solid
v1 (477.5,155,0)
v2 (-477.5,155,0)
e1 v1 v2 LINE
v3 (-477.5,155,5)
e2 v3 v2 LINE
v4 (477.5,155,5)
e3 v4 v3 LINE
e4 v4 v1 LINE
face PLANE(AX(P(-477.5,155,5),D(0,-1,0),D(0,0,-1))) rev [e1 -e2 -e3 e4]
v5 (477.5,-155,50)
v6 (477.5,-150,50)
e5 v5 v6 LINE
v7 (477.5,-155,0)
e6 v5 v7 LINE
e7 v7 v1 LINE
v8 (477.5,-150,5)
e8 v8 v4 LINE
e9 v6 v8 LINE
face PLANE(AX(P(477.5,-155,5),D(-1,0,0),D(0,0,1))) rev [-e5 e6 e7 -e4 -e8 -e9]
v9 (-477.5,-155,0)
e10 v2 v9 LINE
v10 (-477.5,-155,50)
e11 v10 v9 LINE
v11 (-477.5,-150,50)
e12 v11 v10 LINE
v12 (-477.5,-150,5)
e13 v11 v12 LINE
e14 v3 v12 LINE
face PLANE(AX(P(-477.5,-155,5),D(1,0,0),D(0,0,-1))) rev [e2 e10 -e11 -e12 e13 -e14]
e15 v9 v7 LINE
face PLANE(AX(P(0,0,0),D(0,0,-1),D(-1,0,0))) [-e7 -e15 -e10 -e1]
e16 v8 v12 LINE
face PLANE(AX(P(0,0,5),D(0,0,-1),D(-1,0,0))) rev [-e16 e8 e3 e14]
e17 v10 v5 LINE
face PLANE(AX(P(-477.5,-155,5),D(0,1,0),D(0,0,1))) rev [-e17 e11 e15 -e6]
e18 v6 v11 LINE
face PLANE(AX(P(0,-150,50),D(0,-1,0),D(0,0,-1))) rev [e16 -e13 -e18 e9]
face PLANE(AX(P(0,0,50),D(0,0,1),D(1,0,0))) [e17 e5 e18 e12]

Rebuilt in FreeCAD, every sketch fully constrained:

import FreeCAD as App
import Part
import Sketcher

doc = App.newDocument("Part")
params = doc.addObject("Spreadsheet::Sheet", "Params")
for row, (alias, value) in enumerate([
    ("sketch1_width", "955 mm"),
    ("sketch1_height", "310 mm"),
    ("pad1_length", "5 mm"),
    ("sketch2_width", "955 mm"),
    ("sketch2_height", "5 mm"),
    ("pad2_length", "45 mm"),
], start=1):
    params.set(f"A{row}", alias)
    params.set(f"B{row}", "=" + value)
    params.setAlias(f"B{row}", alias)

body = doc.addObject("PartDesign::Body", "Body")

sketch1 = body.newObject("Sketcher::SketchObject", "Sketch")
sketch1.AttachmentSupport = (doc.getObject("XY_Plane"), [""])
sketch1.MapMode = "FlatFace"
sketch1.addGeometry(Part.LineSegment(App.Vector(-478, 155, 0), App.Vector(-478, -155, 0)), False)
sketch1.addGeometry(Part.LineSegment(App.Vector(-478, -155, 0), App.Vector(478, -155, 0)), False)
sketch1.addGeometry(Part.LineSegment(App.Vector(478, -155, 0), App.Vector(478, 155, 0)), False)
sketch1.addGeometry(Part.LineSegment(App.Vector(478, 155, 0), App.Vector(-478, 155, 0)), False)
sketch1.addConstraint(Sketcher.Constraint("Coincident", 0, 2, 1, 1))
sketch1.addConstraint(Sketcher.Constraint("Coincident", 1, 2, 2, 1))
sketch1.addConstraint(Sketcher.Constraint("Coincident", 2, 2, 3, 1))
sketch1.addConstraint(Sketcher.Constraint("Coincident", 3, 2, 0, 1))
sketch1.addConstraint(Sketcher.Constraint("Vertical", 0))
sketch1.addConstraint(Sketcher.Constraint("Horizontal", 1))
sketch1.addConstraint(Sketcher.Constraint("Vertical", 2))
sketch1.addConstraint(Sketcher.Constraint("Horizontal", 3))
sketch1.addConstraint(Sketcher.Constraint("Symmetric", 0, 2, 2, 2, -1, 1))
sketch1.addConstraint(Sketcher.Constraint("DistanceX", 1, 1, 1, 2, 955.0))
sketch1.addConstraint(Sketcher.Constraint("DistanceY", 0, 2, 0, 1, 310.0))
sketch1.setExpression("Constraints[9]", "Params.sketch1_width")
sketch1.setExpression("Constraints[10]", "Params.sketch1_height")
pad1 = body.newObject("PartDesign::Pad", "Pad")
pad1.Profile = sketch1
pad1.setExpression("Length", "Params.pad1_length")

sketch2 = body.newObject("Sketcher::SketchObject", "Sketch001")
sketch2.AttachmentSupport = (doc.getObject("XY_Plane"), [""])
sketch2.MapMode = "FlatFace"
sketch2.AttachmentOffset = App.Placement(App.Vector(0, 0, 5), App.Rotation())
sketch2.addGeometry(Part.LineSegment(App.Vector(-478, -150, 0), App.Vector(-478, -155, 0)), False)
sketch2.addGeometry(Part.LineSegment(App.Vector(-478, -155, 0), App.Vector(478, -155, 0)), False)
sketch2.addGeometry(Part.LineSegment(App.Vector(478, -155, 0), App.Vector(478, -150, 0)), False)
sketch2.addGeometry(Part.LineSegment(App.Vector(478, -150, 0), App.Vector(-478, -150, 0)), False)
sketch2.addConstraint(Sketcher.Constraint("Coincident", 0, 2, 1, 1))
sketch2.addConstraint(Sketcher.Constraint("Coincident", 1, 2, 2, 1))
sketch2.addConstraint(Sketcher.Constraint("Coincident", 2, 2, 3, 1))
sketch2.addConstraint(Sketcher.Constraint("Coincident", 3, 2, 0, 1))
sketch2.addConstraint(Sketcher.Constraint("Vertical", 0))
sketch2.addConstraint(Sketcher.Constraint("Horizontal", 1))
sketch2.addConstraint(Sketcher.Constraint("Vertical", 2))
sketch2.addConstraint(Sketcher.Constraint("Horizontal", 3))
sketch2.addConstraint(Sketcher.Constraint("DistanceX", 1, 1, 1, 2, 955.0))
sketch2.addConstraint(Sketcher.Constraint("DistanceY", 0, 2, 0, 1, 5.0))
sketch2.addConstraint(Sketcher.Constraint("DistanceY", 0, 2, -1, 1, 155.0))
sketch2.addConstraint(Sketcher.Constraint("DistanceX", 0, 2, -1, 1, 477.5))
sketch2.setExpression("Constraints[8]", "Params.sketch2_width")
sketch2.setExpression("Constraints[9]", "Params.sketch2_height")
pad2 = body.newObject("PartDesign::Pad", "Pad001")
pad2.Profile = sketch2
pad2.setExpression("Length", "Params.pad2_length")

doc.recompute()
